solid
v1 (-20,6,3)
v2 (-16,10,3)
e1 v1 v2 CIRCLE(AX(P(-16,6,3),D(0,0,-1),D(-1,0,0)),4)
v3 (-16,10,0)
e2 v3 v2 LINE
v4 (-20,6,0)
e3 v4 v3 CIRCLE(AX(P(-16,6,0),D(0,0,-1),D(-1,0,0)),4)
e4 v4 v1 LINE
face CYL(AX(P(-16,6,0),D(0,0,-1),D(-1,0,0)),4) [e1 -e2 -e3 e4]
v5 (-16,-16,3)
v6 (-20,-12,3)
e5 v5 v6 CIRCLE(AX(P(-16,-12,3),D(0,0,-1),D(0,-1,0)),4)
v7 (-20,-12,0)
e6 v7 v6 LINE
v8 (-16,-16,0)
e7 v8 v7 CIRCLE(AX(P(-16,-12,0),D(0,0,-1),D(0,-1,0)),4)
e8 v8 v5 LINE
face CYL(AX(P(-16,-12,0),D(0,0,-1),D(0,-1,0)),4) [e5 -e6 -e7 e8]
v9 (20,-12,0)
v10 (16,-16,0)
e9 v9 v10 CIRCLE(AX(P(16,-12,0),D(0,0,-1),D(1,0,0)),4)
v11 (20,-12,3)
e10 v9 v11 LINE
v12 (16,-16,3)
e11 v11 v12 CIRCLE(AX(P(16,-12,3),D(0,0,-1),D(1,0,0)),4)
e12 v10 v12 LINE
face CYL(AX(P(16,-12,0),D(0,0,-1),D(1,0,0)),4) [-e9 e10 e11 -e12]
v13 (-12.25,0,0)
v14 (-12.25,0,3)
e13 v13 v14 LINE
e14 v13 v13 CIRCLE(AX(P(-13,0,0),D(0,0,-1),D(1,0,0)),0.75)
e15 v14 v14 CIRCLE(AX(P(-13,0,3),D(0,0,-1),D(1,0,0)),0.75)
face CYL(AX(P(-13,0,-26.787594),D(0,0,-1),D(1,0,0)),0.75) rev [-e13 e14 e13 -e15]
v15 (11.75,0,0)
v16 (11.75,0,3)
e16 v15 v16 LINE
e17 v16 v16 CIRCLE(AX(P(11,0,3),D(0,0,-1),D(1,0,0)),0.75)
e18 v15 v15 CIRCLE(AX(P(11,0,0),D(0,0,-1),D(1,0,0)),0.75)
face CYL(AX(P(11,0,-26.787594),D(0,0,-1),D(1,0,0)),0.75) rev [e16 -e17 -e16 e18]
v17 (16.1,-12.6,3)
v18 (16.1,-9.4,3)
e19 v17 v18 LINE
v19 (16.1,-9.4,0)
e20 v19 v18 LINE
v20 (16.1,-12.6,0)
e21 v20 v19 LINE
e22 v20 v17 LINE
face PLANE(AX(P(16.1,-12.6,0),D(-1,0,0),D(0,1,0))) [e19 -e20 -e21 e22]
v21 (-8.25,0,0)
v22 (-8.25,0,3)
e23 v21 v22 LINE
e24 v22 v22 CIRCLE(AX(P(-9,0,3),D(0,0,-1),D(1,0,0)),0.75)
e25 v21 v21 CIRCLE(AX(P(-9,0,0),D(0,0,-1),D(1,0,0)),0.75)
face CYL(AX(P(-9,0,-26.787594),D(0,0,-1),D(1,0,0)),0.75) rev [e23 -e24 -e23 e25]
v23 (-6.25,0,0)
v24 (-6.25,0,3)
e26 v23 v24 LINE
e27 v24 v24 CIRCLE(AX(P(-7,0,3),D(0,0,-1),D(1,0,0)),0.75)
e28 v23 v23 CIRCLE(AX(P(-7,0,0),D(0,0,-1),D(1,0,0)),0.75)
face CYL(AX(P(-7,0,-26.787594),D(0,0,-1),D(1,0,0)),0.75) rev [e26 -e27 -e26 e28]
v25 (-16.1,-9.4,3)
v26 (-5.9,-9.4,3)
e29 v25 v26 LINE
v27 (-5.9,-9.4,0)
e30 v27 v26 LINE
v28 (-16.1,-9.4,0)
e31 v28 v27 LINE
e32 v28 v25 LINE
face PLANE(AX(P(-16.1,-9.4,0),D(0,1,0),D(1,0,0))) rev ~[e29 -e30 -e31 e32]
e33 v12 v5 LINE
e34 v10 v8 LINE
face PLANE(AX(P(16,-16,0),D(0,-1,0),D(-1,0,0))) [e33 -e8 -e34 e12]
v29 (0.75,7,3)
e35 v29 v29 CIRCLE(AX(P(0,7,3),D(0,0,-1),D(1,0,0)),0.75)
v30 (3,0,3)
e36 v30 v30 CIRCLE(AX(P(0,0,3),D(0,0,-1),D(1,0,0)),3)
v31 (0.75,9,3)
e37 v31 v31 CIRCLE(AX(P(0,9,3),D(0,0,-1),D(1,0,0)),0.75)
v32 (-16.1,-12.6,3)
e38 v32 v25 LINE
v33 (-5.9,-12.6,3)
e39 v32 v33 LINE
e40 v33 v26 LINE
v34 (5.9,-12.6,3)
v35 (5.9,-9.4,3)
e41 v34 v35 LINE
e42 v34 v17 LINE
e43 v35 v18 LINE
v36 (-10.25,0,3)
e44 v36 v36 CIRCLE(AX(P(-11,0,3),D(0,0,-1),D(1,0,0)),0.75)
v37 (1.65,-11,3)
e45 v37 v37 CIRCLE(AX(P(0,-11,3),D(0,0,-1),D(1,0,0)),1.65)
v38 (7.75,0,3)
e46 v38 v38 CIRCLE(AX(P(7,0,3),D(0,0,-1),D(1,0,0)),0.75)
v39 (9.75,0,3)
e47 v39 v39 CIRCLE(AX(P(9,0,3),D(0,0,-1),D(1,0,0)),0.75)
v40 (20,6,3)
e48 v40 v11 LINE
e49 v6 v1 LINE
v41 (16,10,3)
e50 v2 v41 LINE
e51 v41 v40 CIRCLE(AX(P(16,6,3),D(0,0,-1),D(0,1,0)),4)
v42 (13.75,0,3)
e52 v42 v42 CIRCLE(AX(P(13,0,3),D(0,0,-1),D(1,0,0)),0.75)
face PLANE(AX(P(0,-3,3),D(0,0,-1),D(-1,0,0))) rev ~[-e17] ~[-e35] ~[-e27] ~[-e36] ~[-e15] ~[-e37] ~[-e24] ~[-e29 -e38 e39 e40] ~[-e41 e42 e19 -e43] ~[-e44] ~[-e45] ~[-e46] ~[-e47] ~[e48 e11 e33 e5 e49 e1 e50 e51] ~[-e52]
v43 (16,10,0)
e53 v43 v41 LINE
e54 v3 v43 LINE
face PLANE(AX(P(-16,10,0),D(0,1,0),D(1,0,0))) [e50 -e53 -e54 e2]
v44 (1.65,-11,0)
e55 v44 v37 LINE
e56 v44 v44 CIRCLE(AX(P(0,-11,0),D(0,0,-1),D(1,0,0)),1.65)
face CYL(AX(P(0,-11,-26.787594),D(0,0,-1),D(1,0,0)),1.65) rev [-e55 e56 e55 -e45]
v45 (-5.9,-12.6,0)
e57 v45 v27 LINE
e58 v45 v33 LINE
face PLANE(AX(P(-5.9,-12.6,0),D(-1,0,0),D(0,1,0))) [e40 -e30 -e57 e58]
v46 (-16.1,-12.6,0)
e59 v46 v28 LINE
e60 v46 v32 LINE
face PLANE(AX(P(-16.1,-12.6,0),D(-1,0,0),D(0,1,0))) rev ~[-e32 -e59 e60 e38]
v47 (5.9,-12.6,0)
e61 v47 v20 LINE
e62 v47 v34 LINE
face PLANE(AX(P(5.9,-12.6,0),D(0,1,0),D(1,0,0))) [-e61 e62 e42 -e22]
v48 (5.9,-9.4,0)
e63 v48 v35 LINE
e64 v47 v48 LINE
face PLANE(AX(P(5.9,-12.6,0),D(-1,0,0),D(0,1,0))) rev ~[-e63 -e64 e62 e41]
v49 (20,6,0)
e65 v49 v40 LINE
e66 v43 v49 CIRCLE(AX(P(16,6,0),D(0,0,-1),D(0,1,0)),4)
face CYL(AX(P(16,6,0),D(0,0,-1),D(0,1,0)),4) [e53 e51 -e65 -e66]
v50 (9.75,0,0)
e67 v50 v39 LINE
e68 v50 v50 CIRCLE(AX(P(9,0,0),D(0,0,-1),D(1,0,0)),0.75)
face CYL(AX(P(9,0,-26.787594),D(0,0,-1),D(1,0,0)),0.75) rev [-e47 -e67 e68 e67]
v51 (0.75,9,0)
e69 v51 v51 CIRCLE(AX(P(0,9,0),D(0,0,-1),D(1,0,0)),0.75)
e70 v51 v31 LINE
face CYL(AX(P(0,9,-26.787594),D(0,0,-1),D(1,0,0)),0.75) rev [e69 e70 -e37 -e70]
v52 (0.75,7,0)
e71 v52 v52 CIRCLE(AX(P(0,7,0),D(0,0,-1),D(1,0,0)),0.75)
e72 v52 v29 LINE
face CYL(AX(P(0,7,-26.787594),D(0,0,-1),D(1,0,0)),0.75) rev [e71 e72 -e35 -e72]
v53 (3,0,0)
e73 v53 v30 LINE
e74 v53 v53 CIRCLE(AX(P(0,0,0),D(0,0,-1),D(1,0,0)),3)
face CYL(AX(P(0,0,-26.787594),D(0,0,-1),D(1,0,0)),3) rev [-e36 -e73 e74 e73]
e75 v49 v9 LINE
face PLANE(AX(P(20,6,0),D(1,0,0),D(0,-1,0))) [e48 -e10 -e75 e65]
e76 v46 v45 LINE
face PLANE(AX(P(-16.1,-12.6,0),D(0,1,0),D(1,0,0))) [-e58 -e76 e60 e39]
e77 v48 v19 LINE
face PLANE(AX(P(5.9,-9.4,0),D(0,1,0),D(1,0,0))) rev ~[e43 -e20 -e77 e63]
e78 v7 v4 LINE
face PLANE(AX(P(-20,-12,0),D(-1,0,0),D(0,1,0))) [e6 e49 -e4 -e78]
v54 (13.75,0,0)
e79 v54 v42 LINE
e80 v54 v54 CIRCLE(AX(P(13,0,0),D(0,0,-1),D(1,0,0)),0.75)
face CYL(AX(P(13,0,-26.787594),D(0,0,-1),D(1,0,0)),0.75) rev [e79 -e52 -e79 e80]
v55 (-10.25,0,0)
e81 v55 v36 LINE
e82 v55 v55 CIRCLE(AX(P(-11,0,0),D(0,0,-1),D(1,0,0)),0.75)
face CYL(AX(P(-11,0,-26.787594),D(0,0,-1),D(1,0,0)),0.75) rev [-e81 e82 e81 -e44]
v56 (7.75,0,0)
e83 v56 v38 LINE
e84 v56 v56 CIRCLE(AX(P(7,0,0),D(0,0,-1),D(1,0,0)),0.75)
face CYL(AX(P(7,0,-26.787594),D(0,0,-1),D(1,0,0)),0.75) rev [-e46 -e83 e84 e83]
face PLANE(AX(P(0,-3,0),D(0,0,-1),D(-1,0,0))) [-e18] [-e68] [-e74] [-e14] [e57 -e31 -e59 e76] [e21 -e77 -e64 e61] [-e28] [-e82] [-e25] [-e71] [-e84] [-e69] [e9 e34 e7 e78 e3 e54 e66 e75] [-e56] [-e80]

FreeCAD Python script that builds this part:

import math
import FreeCAD as App
import Part
import Sketcher
Q = App.Units.Quantity

doc = App.newDocument("Part")
body = doc.addObject("PartDesign::Body", "Body")

sketch1 = body.newObject("Sketcher::SketchObject", "Sketch")
sketch1.AttachmentSupport = (doc.getObject("XY_Plane"), [""])
sketch1.MapMode = "FlatFace"
sketch1.addGeometry([
    Part.LineSegment(App.Vector(-20, 6, 0), App.Vector(-20, -12, 0)),
    Part.ArcOfCircle(Part.Circle(App.Vector(-16, -12, 0), App.Vector(0, 0, 1), 4), math.radians(180), math.radians(270)),
    Part.LineSegment(App.Vector(-16, -16, 0), App.Vector(16, -16, 0)),
    Part.ArcOfCircle(Part.Circle(App.Vector(16, -12, 0), App.Vector(0, 0, 1), 4), math.radians(-90), math.radians(0)),
    Part.LineSegment(App.Vector(20, -12, 0), App.Vector(20, 6, 0)),
    Part.ArcOfCircle(Part.Circle(App.Vector(16, 6, 0), App.Vector(0, 0, 1), 4), math.radians(0), math.radians(90)),
    Part.LineSegment(App.Vector(16, 10, 0), App.Vector(-16, 10, 0)),
    Part.ArcOfCircle(Part.Circle(App.Vector(-16, 6, 0), App.Vector(0, 0, 1), 4), math.radians(90), math.radians(180)),
    Part.LineSegment(App.Vector(5.9, -12.6, 0), App.Vector(5.9, -9.4, 0)),
    Part.LineSegment(App.Vector(5.9, -9.4, 0), App.Vector(16.1, -9.4, 0)),
    Part.LineSegment(App.Vector(16.1, -9.4, 0), App.Vector(16.1, -12.6, 0)),
    Part.LineSegment(App.Vector(16.1, -12.6, 0), App.Vector(5.9, -12.6, 0)),
    Part.LineSegment(App.Vector(-16.1, -12.6, 0), App.Vector(-16.1, -9.4, 0)),
    Part.LineSegment(App.Vector(-16.1, -9.4, 0), App.Vector(-5.9, -9.4, 0)),
    Part.LineSegment(App.Vector(-5.9, -9.4, 0), App.Vector(-5.9, -12.6, 0)),
    Part.LineSegment(App.Vector(-5.9, -12.6, 0), App.Vector(-16.1, -12.6, 0)),
], False)
sketch1.addConstraint([
    Sketcher.Constraint("Tangent", 0, 2, 1, 1),
    Sketcher.Constraint("Tangent", 1, 2, 2, 1),
    Sketcher.Constraint("Tangent", 2, 2, 3, 1),
    Sketcher.Constraint("Tangent", 3, 2, 4, 1),
    Sketcher.Constraint("Tangent", 4, 2, 5, 1),
    Sketcher.Constraint("Tangent", 5, 2, 6, 1),
    Sketcher.Constraint("Tangent", 6, 2, 7, 1),
    Sketcher.Constraint("Tangent", 7, 2, 0, 1),
    Sketcher.Constraint("Coincident", 8, 2, 9, 1),
    Sketcher.Constraint("Coincident", 9, 2, 10, 1),
    Sketcher.Constraint("Coincident", 10, 2, 11, 1),
    Sketcher.Constraint("Coincident", 11, 2, 8, 1),
    Sketcher.Constraint("Coincident", 12, 2, 13, 1),
    Sketcher.Constraint("Coincident", 13, 2, 14, 1),
    Sketcher.Constraint("Coincident", 14, 2, 15, 1),
    Sketcher.Constraint("Coincident", 15, 2, 12, 1),
    Sketcher.Constraint("Vertical", 0),
    Sketcher.Constraint("Horizontal", 2),
    Sketcher.Constraint("Vertical", 4),
    Sketcher.Constraint("Horizontal", 6),
    Sketcher.Constraint("Vertical", 8),
    Sketcher.Constraint("Horizontal", 9),
    Sketcher.Constraint("Vertical", 10),
    Sketcher.Constraint("Horizontal", 11),
    Sketcher.Constraint("Vertical", 12),
    Sketcher.Constraint("Horizontal", 13),
    Sketcher.Constraint("Vertical", 14),
    Sketcher.Constraint("Horizontal", 15),
    Sketcher.Constraint("Equal", 1, 3),
    Sketcher.Constraint("Equal", 3, 5),
    Sketcher.Constraint("Equal", 5, 7),
    Sketcher.Constraint("Symmetric", 9, 2, 12, 2, -2),
    Sketcher.Constraint("Symmetric", 11, 2, 14, 2, -2),
    Sketcher.Constraint("Radius", 1, Q("4 mm")),
    Sketcher.Constraint("DistanceX", 2, 1, 2, 2, Q("32 mm")),
    Sketcher.Constraint("DistanceY", 0, 2, 0, 1, Q("18 mm")),
    Sketcher.Constraint("DistanceX", 9, 1, 9, 2, Q("10.2 mm")),
    Sketcher.Constraint("DistanceY", 8, 1, 8, 2, Q("3.2 mm")),
    Sketcher.Constraint("DistanceX", 1, 3, -1, 1, Q("16 mm")),
    Sketcher.Constraint("DistanceY", 1, 3, -1, 1, Q("12 mm")),
    Sketcher.Constraint("DistanceX", -1, 1, 8, 2, Q("5.9 mm")),
    Sketcher.Constraint("DistanceY", 8, 2, -1, 1, Q("9.4 mm")),
])
pad1 = body.newObject("PartDesign::Pad", "Pad")
pad1.Profile = sketch1
pad1.Length = 3

sketch2 = body.newObject("Sketcher::SketchObject", "Sketch001")
sketch2.AttachmentSupport = (doc.getObject("XY_Plane"), [""])
sketch2.MapMode = "FlatFace"
sketch2.addGeometry([
    Part.Circle(App.Vector(0, -11, 0), App.Vector(0, 0, 1), 1.65),
    Part.Circle(App.Vector(-13, 0, 0), App.Vector(0, 0, 1), 0.75),
    Part.Circle(App.Vector(-11, 0, 0), App.Vector(0, 0, 1), 0.75),
    Part.Circle(App.Vector(-9, 0, 0), App.Vector(0, 0, 1), 0.75),
    Part.Circle(App.Vector(-7, 0, 0), App.Vector(0, 0, 1), 0.75),
    Part.Circle(App.Vector(0, 0, 0), App.Vector(0, 0, 1), 3),
    Part.Circle(App.Vector(7, 0, 0), App.Vector(0, 0, 1), 0.75),
    Part.Circle(App.Vector(9, 0, 0), App.Vector(0, 0, 1), 0.75),
    Part.Circle(App.Vector(11, 0, 0), App.Vector(0, 0, 1), 0.75),
    Part.Circle(App.Vector(13, 0, 0), App.Vector(0, 0, 1), 0.75),
    Part.Circle(App.Vector(0, 7, 0), App.Vector(0, 0, 1), 0.75),
    Part.Circle(App.Vector(0, 9, 0), App.Vector(0, 0, 1), 0.75),
], False)
sketch2.addConstraint([
    Sketcher.Constraint("Coincident", 5, 3, -1, 1),
    Sketcher.Constraint("Equal", 1, 2),
    Sketcher.Constraint("Equal", 2, 3),
    Sketcher.Constraint("Equal", 3, 4),
    Sketcher.Constraint("Equal", 4, 6),
    Sketcher.Constraint("Equal", 6, 7),
    Sketcher.Constraint("Equal", 7, 8),
    Sketcher.Constraint("Equal", 8, 9),
    Sketcher.Constraint("Equal", 9, 10),
    Sketcher.Constraint("Equal", 10, 11),
    Sketcher.Constraint("Symmetric", 4, 3, 6, 3, -1, 1),
    Sketcher.Constraint("Symmetric", 3, 3, 7, 3, -1, 1),
    Sketcher.Constraint("Symmetric", 2, 3, 8, 3, -1, 1),
    Sketcher.Constraint("Symmetric", 1, 3, 9, 3, -1, 1),
    Sketcher.Constraint("PointOnObject", 0, 3, -2),
    Sketcher.Constraint("PointOnObject", 1, 3, -1),
    Sketcher.Constraint("PointOnObject", 2, 3, -1),
    Sketcher.Constraint("PointOnObject", 3, 3, -1),
    Sketcher.Constraint("PointOnObject", 4, 3, -1),
    Sketcher.Constraint("PointOnObject", 10, 3, -2),
    Sketcher.Constraint("PointOnObject", 11, 3, -2),
    Sketcher.Constraint("Diameter", 5, Q("6 mm")),
    Sketcher.Constraint("Diameter", 0, Q("3.3 mm")),
    Sketcher.Constraint("Diameter", 1, Q("1.5 mm")),
    Sketcher.Constraint("DistanceY", 0, 3, -1, 1, Q("11 mm")),
    Sketcher.Constraint("DistanceX", 1, 3, -1, 1, Q("13 mm")),
    Sketcher.Constraint("DistanceX", 2, 3, -1, 1, Q("11 mm")),
    Sketcher.Constraint("DistanceX", 3, 3, -1, 1, Q("9 mm")),
    Sketcher.Constraint("DistanceX", 4, 3, -1, 1, Q("7 mm")),
    Sketcher.Constraint("DistanceY", -1, 1, 10, 3, Q("7 mm")),
    Sketcher.Constraint("DistanceY", -1, 1, 11, 3, Q("9 mm")),
])
pocket1 = body.newObject("PartDesign::Pocket", "Pocket")
pocket1.Profile = sketch2
pocket1.Type = "ThroughAll"
pocket1.Midplane = True

doc.recompute()
